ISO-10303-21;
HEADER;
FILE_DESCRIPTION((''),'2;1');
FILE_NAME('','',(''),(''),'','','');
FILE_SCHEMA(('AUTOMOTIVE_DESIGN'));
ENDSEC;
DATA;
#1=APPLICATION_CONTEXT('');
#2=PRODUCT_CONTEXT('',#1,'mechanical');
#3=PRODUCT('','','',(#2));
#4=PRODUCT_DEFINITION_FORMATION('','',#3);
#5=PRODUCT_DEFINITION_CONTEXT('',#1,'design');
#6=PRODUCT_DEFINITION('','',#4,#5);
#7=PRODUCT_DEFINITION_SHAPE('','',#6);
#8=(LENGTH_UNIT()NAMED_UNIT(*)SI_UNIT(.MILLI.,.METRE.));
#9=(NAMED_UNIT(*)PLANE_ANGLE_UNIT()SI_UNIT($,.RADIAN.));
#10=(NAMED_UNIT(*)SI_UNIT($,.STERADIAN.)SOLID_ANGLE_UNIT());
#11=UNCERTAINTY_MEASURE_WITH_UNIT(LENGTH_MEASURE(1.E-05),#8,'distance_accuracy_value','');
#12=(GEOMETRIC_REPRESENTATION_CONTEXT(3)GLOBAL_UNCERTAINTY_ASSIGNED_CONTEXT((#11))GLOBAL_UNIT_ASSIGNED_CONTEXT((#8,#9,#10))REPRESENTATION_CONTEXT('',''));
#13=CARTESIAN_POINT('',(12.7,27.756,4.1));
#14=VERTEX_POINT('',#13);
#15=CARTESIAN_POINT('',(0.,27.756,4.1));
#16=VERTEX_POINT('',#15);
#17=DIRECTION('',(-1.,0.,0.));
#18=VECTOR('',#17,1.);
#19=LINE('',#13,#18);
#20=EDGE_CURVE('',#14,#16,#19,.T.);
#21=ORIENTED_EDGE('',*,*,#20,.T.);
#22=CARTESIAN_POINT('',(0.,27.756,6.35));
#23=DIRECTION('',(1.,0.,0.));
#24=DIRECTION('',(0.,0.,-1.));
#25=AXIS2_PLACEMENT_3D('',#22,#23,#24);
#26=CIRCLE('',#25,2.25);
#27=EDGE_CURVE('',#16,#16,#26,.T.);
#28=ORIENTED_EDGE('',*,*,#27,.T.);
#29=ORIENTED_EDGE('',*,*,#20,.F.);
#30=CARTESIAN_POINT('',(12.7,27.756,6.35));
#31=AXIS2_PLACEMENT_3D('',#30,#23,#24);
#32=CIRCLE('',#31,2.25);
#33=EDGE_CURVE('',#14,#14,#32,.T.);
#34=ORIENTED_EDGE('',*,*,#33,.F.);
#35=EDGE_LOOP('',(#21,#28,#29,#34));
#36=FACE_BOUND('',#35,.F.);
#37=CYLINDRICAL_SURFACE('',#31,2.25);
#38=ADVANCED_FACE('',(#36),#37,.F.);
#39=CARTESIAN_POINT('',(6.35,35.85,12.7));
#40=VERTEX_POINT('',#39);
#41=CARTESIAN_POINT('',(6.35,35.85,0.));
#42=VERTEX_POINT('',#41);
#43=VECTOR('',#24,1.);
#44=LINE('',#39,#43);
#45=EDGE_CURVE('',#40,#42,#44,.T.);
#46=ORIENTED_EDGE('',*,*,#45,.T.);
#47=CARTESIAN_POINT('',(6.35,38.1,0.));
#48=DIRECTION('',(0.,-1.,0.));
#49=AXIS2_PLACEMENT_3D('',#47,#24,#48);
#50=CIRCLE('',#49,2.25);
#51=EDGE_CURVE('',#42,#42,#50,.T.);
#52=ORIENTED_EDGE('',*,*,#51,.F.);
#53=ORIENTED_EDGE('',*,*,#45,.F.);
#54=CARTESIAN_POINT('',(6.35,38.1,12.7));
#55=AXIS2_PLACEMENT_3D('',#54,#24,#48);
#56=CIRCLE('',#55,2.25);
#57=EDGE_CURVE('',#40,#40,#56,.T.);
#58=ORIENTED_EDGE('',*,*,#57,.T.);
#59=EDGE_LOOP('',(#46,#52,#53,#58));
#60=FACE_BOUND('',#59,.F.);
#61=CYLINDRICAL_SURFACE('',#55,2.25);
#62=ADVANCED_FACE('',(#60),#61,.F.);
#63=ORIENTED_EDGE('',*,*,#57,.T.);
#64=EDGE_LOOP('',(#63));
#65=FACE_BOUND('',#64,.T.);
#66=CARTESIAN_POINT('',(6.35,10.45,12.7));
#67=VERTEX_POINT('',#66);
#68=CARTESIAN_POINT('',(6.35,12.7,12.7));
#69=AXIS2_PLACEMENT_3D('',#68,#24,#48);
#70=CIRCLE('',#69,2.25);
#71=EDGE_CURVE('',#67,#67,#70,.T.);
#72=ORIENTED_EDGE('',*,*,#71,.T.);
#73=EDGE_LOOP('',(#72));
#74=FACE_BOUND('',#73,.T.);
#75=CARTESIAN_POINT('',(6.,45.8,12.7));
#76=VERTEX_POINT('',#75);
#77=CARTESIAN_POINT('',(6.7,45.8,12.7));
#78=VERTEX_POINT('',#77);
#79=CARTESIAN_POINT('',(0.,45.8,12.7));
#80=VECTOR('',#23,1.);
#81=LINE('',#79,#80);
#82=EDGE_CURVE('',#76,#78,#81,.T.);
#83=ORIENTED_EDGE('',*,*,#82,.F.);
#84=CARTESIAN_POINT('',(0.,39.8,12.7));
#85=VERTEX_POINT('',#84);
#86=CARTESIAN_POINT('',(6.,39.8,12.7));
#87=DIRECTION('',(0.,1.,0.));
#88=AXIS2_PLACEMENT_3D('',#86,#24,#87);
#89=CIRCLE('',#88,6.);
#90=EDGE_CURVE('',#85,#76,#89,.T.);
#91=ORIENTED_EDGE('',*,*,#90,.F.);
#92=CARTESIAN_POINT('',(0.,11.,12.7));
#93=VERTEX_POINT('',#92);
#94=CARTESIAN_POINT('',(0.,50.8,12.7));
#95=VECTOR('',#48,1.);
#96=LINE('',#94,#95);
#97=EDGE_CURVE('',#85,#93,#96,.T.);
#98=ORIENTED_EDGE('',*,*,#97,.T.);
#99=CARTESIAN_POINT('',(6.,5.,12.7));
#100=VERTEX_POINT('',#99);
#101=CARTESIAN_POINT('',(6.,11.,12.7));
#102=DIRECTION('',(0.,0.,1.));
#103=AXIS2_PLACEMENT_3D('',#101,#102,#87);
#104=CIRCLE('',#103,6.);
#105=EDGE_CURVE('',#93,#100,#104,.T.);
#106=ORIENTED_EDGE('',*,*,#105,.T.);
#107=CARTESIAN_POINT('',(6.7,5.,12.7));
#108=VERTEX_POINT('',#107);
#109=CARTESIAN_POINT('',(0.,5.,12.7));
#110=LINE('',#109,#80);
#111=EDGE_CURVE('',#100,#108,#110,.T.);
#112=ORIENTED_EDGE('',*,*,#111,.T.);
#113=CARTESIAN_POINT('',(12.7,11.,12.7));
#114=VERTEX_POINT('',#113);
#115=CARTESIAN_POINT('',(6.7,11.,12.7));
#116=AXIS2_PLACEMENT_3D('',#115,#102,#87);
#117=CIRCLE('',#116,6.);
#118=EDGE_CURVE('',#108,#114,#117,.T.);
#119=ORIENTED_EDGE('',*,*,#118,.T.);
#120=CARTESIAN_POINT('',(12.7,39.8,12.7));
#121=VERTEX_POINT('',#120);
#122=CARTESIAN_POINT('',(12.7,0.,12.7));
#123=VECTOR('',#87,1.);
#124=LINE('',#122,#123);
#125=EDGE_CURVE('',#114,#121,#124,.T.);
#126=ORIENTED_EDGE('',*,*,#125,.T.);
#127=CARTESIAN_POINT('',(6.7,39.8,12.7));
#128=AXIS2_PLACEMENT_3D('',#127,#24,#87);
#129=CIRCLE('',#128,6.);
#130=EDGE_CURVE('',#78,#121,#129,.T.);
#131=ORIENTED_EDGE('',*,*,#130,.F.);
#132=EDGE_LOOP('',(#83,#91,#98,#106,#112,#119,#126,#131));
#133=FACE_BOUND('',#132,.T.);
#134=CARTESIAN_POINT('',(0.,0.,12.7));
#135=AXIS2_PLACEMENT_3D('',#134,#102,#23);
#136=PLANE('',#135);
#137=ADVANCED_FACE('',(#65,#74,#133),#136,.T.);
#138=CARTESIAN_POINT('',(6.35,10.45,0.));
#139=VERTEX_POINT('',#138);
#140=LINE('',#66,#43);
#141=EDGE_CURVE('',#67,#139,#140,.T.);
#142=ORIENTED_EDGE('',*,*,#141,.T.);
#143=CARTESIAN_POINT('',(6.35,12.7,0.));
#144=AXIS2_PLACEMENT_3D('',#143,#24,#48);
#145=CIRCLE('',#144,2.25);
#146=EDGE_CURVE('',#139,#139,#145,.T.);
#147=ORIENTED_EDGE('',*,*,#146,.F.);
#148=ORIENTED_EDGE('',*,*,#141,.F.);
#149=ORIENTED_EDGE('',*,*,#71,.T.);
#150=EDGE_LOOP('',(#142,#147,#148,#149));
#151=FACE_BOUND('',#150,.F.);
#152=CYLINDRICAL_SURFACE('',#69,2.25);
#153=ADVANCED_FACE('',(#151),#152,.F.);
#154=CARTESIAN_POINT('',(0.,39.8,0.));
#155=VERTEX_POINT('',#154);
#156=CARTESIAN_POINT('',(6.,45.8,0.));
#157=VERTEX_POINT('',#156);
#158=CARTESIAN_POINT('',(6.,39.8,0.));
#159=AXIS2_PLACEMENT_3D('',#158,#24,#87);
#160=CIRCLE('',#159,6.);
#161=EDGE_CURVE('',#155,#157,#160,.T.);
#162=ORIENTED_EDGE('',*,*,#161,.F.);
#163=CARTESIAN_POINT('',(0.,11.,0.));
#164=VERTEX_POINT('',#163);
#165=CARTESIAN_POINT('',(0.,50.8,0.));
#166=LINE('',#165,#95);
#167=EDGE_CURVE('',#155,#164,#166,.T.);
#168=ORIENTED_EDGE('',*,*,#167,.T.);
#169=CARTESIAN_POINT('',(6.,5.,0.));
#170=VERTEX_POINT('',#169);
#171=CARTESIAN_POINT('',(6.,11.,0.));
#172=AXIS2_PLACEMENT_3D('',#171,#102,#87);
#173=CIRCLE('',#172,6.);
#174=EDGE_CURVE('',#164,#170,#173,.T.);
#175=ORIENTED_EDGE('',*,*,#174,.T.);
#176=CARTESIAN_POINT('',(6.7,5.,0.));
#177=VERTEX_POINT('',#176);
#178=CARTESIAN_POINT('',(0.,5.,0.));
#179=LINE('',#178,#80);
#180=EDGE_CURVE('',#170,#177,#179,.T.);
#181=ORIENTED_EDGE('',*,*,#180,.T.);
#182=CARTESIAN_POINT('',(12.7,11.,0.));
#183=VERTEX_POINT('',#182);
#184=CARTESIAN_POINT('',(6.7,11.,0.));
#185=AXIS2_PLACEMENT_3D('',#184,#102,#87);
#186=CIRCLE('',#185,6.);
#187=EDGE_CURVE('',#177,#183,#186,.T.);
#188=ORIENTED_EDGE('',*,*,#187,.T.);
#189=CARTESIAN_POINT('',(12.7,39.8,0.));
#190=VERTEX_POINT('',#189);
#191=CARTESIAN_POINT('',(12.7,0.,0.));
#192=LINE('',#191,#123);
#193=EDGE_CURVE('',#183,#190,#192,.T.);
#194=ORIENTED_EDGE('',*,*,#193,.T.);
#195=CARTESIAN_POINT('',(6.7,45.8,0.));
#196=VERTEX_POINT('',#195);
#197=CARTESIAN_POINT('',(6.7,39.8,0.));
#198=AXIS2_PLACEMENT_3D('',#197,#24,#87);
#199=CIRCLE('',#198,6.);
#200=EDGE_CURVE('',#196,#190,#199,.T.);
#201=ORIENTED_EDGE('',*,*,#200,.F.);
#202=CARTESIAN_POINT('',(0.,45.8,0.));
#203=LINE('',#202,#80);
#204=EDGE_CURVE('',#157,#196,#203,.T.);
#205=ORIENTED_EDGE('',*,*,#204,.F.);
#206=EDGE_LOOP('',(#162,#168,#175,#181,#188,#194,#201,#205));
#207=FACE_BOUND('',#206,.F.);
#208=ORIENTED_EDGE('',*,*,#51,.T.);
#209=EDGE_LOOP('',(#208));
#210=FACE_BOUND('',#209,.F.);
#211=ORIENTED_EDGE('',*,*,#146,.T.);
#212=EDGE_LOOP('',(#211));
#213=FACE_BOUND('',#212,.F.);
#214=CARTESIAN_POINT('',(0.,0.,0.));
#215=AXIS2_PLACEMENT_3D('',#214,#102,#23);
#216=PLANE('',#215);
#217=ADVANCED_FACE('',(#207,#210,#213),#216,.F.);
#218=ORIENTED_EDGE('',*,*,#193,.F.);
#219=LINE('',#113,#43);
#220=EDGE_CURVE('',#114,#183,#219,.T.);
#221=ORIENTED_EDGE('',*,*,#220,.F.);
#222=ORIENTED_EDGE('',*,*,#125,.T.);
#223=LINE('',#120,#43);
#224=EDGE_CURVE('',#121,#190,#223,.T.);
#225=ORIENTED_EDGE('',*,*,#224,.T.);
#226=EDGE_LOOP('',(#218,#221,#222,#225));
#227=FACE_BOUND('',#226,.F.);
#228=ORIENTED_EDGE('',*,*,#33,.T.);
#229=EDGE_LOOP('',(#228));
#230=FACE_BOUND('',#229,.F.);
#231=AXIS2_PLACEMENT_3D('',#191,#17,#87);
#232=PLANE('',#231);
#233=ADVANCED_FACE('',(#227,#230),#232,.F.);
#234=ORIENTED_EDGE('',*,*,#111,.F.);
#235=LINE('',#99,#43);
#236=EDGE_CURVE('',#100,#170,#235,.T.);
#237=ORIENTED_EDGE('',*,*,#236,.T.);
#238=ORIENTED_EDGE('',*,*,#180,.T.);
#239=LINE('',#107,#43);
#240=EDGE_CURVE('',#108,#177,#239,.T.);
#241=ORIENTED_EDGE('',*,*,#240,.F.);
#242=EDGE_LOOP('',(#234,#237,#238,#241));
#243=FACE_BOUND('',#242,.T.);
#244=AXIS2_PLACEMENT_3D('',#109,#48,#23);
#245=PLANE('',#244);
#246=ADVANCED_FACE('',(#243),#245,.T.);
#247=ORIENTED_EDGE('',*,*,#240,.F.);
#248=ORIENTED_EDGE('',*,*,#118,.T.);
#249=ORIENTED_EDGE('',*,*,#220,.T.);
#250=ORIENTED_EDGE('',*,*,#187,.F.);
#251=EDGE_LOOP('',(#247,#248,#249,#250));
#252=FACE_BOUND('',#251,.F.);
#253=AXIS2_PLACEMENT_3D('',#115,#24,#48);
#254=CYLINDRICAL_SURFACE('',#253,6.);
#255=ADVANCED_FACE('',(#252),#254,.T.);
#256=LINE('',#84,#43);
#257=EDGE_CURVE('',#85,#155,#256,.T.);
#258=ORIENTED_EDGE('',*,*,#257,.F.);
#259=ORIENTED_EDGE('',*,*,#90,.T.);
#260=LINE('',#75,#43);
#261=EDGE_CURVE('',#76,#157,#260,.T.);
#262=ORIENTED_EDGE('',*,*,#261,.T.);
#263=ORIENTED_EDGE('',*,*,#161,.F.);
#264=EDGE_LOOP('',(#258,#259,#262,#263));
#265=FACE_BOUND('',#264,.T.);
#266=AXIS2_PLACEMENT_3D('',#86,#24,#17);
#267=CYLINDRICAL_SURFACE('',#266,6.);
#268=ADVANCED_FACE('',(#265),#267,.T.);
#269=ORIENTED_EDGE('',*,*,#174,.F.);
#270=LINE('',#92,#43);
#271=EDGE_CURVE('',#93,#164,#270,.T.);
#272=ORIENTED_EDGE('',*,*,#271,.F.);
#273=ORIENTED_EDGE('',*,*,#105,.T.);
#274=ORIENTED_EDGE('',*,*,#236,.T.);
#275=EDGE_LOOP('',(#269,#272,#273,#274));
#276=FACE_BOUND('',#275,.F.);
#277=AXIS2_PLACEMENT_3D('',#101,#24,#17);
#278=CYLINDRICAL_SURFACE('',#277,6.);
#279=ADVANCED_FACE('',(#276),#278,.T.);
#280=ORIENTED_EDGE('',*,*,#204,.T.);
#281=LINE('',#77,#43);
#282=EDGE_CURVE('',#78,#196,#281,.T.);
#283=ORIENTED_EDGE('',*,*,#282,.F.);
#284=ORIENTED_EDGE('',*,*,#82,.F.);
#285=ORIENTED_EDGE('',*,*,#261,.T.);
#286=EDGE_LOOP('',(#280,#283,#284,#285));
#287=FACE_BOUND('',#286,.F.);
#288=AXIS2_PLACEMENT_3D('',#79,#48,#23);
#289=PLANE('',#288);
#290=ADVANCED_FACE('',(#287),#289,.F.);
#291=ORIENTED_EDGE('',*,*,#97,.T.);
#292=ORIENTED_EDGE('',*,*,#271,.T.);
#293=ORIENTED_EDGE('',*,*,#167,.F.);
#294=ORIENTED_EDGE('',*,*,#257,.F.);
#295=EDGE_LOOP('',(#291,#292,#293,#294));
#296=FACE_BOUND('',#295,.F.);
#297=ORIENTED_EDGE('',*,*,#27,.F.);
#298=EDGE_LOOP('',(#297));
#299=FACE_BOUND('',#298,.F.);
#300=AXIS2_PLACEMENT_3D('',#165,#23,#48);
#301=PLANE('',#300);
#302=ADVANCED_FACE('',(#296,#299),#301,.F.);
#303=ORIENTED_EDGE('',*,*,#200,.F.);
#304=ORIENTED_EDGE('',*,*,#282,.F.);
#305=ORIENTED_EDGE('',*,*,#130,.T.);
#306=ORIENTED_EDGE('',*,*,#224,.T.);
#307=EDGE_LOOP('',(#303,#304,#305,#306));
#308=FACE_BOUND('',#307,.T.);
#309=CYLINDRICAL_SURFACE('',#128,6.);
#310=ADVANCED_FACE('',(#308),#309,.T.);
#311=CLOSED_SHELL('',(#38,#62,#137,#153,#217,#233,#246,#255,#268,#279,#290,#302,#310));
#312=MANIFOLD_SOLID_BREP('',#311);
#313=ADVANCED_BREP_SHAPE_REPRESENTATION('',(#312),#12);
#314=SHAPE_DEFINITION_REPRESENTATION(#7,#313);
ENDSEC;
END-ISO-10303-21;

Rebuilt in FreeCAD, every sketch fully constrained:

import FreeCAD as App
import Part
import Sketcher


def edges_at(feature, points):
    """Names of the edges that pass closest to the given points."""
    edges = feature.Shape.Edges
    near = lambda p: min(range(len(edges)), key=lambda i: edges[i].distToShape(Part.Vertex(*p))[0])
    return sorted({f"Edge{near(p) + 1}" for p in points})

doc = App.newDocument("Part")
body = doc.addObject("PartDesign::Body", "Body")

sketch1 = body.newObject("Sketcher::SketchObject", "Sketch")
sketch1.AttachmentSupport = (doc.getObject("XY_Plane"), [""])
sketch1.MapMode = "FlatFace"
sketch1.addGeometry(Part.LineSegment(App.Vector(0, 51, 0), App.Vector(0, 0, 0)), False)
sketch1.addGeometry(Part.LineSegment(App.Vector(0, 0, 0), App.Vector(13, 0, 0)), False)
sketch1.addGeometry(Part.LineSegment(App.Vector(13, 0, 0), App.Vector(13, 51, 0)), False)
sketch1.addGeometry(Part.LineSegment(App.Vector(13, 51, 0), App.Vector(0, 51, 0)), False)
sketch1.addConstraint(Sketcher.Constraint("Coincident", 0, 2, 1, 1))
sketch1.addConstraint(Sketcher.Constraint("Coincident", 1, 2, 2, 1))
sketch1.addConstraint(Sketcher.Constraint("Coincident", 2, 2, 3, 1))
sketch1.addConstraint(Sketcher.Constraint("Coincident", 3, 2, 0, 1))
sketch1.addConstraint(Sketcher.Constraint("Vertical", 0))
sketch1.addConstraint(Sketcher.Constraint("Horizontal", 1))
sketch1.addConstraint(Sketcher.Constraint("Vertical", 2))
sketch1.addConstraint(Sketcher.Constraint("Horizontal", 3))
sketch1.addConstraint(Sketcher.Constraint("Coincident", 0, 2, -1, 1))
sketch1.addConstraint(Sketcher.Constraint("DistanceX", 1, 1, 1, 2, 12.7))
sketch1.addConstraint(Sketcher.Constraint("DistanceY", 0, 2, 0, 1, 50.8))
pad1 = body.newObject("PartDesign::Pad", "Pad")
pad1.Profile = sketch1
pad1.Length = 12.7

sketch2 = body.newObject("Sketcher::SketchObject", "Sketch001")
sketch2.AttachmentSupport = (doc.getObject("XY_Plane"), [""])
sketch2.MapMode = "FlatFace"
sketch2.AttachmentOffset = App.Placement(App.Vector(0, 0, 12.7), App.Rotation())
sketch2.addGeometry(Part.Circle(App.Vector(6.3, 38.1, 0), App.Vector(0, 0, 1), 2.2), False)
sketch2.addGeometry(Part.Circle(App.Vector(6.3, 12.7, 0), App.Vector(0, 0, 1), 2.2), False)
sketch2.addConstraint(Sketcher.Constraint("Equal", 0, 1))
sketch2.addConstraint(Sketcher.Constraint("Vertical", 0, 3, 1, 3))
sketch2.addConstraint(Sketcher.Constraint("Diameter", 0, 4.5))
sketch2.addConstraint(Sketcher.Constraint("DistanceY", -1, 1, 0, 3, 38.1))
sketch2.addConstraint(Sketcher.Constraint("DistanceY", -1, 1, 1, 3, 12.7))
sketch2.addConstraint(Sketcher.Constraint("DistanceX", -1, 1, 0, 3, 6.35))
doc.recompute()
hole = body.newObject("PartDesign::Hole", "Hole")
hole.Profile = sketch2
hole.ThreadType = "None"
hole.Diameter = 4.5
hole.DepthType = "ThroughAll"

sketch3 = body.newObject("Sketcher::SketchObject", "Sketch002")
sketch3.AttachmentSupport = (doc.getObject("XY_Plane"), [""])
sketch3.MapMode = "FlatFace"
sketch3.AttachmentOffset = App.Placement(App.Vector(0, 0, 12.7), App.Rotation())
sketch3.addGeometry(Part.LineSegment(App.Vector(13, 46, 0), App.Vector(13, 51, 0)), False)
sketch3.addGeometry(Part.LineSegment(App.Vector(13, 51, 0), App.Vector(0, 51, 0)), False)
sketch3.addGeometry(Part.LineSegment(App.Vector(0, 51, 0), App.Vector(0, 46, 0)), False)
sketch3.addGeometry(Part.LineSegment(App.Vector(0, 46, 0), App.Vector(13, 46, 0)), False)
sketch3.addConstraint(Sketcher.Constraint("Coincident", 0, 2, 1, 1))
sketch3.addConstraint(Sketcher.Constraint("Coincident", 1, 2, 2, 1))
sketch3.addConstraint(Sketcher.Constraint("Coincident", 2, 2, 3, 1))
sketch3.addConstraint(Sketcher.Constraint("Coincident", 3, 2, 0, 1))
sketch3.addConstraint(Sketcher.Constraint("Vertical", 0))
sketch3.addConstraint(Sketcher.Constraint("Horizontal", 1))
sketch3.addConstraint(Sketcher.Constraint("Vertical", 2))
sketch3.addConstraint(Sketcher.Constraint("Horizontal", 3))
sketch3.addConstraint(Sketcher.Constraint("PointOnObject", 1, 2, -2))
sketch3.addConstraint(Sketcher.Constraint("DistanceY", 0, 1, 0, 2, 5.0))
sketch3.addConstraint(Sketcher.Constraint("DistanceX", 1, 2, 1, 1, 12.7))
sketch3.addConstraint(Sketcher.Constraint("DistanceY", -1, 1, 0, 2, 50.8))
pocket1 = body.newObject("PartDesign::Pocket", "Pocket")
pocket1.Profile = sketch3
pocket1.Length = 12.7

sketch4 = body.newObject("Sketcher::SketchObject", "Sketch003")
sketch4.AttachmentSupport = (doc.getObject("XY_Plane"), [""])
sketch4.MapMode = "FlatFace"
sketch4.AttachmentOffset = App.Placement(App.Vector(0, 0, 12.7), App.Rotation())
sketch4.addGeometry(Part.LineSegment(App.Vector(13, 5, 0), App.Vector(0, 5, 0)), False)
sketch4.addGeometry(Part.LineSegment(App.Vector(0, 5, 0), App.Vector(0, 0, 0)), False)
sketch4.addGeometry(Part.LineSegment(App.Vector(0, 0, 0), App.Vector(13, 0, 0)), False)
sketch4.addGeometry(Part.LineSegment(App.Vector(13, 0, 0), App.Vector(13, 5, 0)), False)
sketch4.addConstraint(Sketcher.Constraint("Coincident", 0, 2, 1, 1))
sketch4.addConstraint(Sketcher.Constraint("Coincident", 1, 2, 2, 1))
sketch4.addConstraint(Sketcher.Constraint("Coincident", 2, 2, 3, 1))
sketch4.addConstraint(Sketcher.Constraint("Coincident", 3, 2, 0, 1))
sketch4.addConstraint(Sketcher.Constraint("Horizontal", 0))
sketch4.addConstraint(Sketcher.Constraint("Vertical", 1))
sketch4.addConstraint(Sketcher.Constraint("Horizontal", 2))
sketch4.addConstraint(Sketcher.Constraint("Vertical", 3))
sketch4.addConstraint(Sketcher.Constraint("Coincident", 1, 2, -1, 1))
sketch4.addConstraint(Sketcher.Constraint("DistanceY", 1, 2, 1, 1, 5.0))
sketch4.addConstraint(Sketcher.Constraint("DistanceX", 0, 2, 0, 1, 12.7))
pocket2 = body.newObject("PartDesign::Pocket", "Pocket001")
pocket2.Profile = sketch4
pocket2.Length = 12.7
doc.recompute()

fillet = body.newObject("PartDesign::Fillet", "Fillet")
fillet.Base = (pocket2, edges_at(pocket2, [(12.7, 45.8, 6.35), (0, 45.8, 6.35)]))
fillet.Radius = 6
doc.recompute()

fillet2 = body.newObject("PartDesign::Fillet", "Fillet001")
fillet2.Base = (fillet, edges_at(fillet, [(12.7, 5, 6.35), (0, 5, 6.35)]))
fillet2.Radius = 6

sketch5 = body.newObject("Sketcher::SketchObject", "Sketch004")
sketch5.AttachmentSupport = (doc.getObject("YZ_Plane"), [""])
sketch5.MapMode = "FlatFace"
sketch5.AttachmentOffset = App.Placement(App.Vector(0, 0, 12.7), App.Rotation())
sketch5.addGeometry(Part.Circle(App.Vector(27.8, 6.3, 0), App.Vector(0, 0, 1), 2.2), False)
sketch5.addConstraint(Sketcher.Constraint("Diameter", 0, 4.5))
sketch5.addConstraint(Sketcher.Constraint("DistanceY", -1, 1, 0, 3, 6.35))
sketch5.addConstraint(Sketcher.Constraint("DistanceX", -1, 1, 0, 3, 27.756))
pocket3 = body.newObject("PartDesign::Pocket", "Pocket002")
pocket3.Profile = sketch5
pocket3.Length = 12.7

doc.recompute()
